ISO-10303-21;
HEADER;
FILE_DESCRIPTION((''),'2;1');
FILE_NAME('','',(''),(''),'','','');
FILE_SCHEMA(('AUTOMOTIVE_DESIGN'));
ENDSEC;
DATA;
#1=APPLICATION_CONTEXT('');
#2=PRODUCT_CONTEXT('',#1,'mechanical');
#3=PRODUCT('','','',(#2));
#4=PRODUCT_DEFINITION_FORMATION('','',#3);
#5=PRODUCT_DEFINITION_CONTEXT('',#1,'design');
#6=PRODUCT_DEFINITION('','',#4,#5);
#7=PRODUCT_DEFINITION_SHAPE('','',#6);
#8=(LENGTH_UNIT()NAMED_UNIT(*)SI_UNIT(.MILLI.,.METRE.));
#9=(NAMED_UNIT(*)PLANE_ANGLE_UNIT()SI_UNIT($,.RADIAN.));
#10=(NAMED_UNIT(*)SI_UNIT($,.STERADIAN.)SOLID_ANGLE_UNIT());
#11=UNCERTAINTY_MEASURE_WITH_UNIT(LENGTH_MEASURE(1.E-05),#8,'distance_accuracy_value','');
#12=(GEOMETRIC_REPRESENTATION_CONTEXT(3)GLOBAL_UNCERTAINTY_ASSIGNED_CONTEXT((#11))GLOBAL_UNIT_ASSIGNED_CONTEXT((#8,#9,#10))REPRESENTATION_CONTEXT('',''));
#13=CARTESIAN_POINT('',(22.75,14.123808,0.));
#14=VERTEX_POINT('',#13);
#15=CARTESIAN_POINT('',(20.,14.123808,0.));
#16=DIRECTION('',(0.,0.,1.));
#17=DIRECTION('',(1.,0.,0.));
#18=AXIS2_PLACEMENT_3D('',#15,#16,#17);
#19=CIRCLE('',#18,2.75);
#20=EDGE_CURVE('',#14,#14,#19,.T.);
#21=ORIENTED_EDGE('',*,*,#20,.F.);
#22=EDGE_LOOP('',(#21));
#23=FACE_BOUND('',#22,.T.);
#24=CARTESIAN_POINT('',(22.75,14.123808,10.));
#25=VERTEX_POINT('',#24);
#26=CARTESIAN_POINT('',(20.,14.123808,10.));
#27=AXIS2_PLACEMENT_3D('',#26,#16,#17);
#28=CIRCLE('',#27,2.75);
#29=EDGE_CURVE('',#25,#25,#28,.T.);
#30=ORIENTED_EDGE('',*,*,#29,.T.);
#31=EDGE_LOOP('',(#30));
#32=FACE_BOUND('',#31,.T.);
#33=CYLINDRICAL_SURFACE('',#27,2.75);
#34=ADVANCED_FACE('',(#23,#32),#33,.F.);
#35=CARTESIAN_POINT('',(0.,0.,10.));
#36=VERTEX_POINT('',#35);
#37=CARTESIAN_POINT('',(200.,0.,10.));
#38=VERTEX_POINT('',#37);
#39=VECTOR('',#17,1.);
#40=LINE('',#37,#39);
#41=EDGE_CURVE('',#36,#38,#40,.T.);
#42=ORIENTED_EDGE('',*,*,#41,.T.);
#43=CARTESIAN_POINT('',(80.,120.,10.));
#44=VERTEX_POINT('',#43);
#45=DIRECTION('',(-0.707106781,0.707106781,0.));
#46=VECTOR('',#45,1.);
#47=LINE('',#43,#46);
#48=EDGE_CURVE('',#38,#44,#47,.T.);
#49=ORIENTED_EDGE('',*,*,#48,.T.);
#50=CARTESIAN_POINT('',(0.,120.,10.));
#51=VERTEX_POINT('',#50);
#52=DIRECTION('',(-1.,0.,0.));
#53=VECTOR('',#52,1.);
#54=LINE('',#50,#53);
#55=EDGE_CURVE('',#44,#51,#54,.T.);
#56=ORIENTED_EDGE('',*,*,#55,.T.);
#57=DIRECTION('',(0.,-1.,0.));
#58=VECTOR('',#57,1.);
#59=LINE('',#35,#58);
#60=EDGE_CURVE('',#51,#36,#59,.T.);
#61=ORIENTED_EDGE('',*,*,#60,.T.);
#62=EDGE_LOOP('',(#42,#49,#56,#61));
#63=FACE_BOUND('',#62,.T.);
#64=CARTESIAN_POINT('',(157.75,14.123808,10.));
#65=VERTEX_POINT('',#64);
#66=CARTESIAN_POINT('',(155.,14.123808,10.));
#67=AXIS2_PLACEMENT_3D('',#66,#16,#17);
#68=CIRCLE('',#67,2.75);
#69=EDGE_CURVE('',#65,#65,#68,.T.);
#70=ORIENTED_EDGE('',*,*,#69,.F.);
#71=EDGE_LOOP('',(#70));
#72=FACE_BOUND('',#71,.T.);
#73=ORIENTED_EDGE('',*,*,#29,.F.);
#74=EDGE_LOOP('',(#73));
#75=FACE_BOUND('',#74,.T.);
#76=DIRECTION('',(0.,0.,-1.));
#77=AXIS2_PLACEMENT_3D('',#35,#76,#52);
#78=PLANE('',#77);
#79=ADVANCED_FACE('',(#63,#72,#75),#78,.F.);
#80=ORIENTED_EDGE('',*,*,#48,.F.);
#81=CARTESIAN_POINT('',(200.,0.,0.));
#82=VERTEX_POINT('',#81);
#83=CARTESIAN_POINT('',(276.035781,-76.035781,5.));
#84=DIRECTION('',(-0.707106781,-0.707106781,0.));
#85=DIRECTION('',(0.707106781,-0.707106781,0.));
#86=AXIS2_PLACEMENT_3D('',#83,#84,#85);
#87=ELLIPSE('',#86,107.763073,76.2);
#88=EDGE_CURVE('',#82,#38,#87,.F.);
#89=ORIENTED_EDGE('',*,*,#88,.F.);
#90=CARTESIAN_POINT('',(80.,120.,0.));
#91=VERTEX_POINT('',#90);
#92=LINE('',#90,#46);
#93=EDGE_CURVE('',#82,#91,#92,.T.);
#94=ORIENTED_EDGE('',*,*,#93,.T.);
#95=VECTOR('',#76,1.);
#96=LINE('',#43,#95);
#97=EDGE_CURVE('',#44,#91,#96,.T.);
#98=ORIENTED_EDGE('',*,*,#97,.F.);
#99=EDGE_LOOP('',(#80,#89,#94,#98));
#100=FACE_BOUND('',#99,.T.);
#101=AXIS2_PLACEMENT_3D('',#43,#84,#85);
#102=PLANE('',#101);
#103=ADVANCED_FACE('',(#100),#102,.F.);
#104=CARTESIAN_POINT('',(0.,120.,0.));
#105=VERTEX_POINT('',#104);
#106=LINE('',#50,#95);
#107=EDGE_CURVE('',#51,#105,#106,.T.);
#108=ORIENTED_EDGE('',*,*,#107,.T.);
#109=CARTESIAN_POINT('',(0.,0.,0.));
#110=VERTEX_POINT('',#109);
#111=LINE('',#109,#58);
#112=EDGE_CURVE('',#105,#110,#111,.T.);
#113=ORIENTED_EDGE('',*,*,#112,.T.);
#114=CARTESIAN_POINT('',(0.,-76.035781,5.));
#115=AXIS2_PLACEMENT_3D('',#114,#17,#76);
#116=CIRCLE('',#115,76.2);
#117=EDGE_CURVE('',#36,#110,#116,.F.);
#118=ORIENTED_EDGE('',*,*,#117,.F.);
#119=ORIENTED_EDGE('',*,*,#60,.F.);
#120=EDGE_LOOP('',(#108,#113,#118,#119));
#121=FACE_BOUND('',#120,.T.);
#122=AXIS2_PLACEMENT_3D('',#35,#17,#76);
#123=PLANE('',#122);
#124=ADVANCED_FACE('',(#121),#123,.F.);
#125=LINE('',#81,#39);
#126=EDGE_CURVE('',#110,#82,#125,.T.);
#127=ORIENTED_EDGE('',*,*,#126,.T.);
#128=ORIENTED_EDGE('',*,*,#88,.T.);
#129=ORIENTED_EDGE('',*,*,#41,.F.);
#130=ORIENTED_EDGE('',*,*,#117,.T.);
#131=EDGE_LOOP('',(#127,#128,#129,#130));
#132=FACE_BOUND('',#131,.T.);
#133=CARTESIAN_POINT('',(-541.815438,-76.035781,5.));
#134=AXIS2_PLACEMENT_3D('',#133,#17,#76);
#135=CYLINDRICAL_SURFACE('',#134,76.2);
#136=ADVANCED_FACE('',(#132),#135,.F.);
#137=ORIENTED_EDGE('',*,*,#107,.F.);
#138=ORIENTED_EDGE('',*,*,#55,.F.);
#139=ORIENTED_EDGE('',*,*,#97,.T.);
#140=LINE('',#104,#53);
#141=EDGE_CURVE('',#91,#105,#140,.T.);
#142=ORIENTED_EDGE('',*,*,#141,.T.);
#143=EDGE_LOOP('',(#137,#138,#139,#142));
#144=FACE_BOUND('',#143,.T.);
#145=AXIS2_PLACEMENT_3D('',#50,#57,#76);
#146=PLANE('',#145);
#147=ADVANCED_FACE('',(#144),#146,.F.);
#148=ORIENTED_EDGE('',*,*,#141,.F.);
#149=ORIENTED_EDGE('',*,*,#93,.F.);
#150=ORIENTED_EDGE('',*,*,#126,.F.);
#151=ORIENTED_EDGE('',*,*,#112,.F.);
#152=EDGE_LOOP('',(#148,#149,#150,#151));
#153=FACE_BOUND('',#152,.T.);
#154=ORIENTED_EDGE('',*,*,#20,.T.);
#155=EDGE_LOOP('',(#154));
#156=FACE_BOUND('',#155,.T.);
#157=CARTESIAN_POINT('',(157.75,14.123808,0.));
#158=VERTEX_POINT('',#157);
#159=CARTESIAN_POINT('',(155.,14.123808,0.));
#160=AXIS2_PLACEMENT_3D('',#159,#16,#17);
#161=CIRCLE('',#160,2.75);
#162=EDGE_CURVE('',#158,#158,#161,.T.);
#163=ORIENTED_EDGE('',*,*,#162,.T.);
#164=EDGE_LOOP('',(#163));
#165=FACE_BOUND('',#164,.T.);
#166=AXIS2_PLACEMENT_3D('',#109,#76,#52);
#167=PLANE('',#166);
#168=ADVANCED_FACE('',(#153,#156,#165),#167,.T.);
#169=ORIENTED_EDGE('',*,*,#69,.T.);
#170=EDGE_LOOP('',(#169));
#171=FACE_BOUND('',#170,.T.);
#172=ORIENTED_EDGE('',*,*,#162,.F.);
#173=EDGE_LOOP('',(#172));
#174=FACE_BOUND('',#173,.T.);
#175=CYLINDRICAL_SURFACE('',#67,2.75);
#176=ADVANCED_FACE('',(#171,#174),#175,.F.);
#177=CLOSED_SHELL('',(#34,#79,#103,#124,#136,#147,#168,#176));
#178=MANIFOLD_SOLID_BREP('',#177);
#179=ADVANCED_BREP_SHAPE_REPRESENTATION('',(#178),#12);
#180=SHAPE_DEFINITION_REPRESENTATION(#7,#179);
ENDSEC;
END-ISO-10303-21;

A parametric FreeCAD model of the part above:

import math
import FreeCAD as App
import Part
import Sketcher


def add_polygon(sketch, points):
    """Adds a closed chain of lines whose ends are joined by coincident constraints."""
    first, n = sketch.GeometryCount, len(points)
    for a, b in zip(points, points[1:] + points[:1]):
        sketch.addGeometry(Part.LineSegment(App.Vector(*a, 0), App.Vector(*b, 0)), False)
    for i in range(n):
        sketch.addConstraint(Sketcher.Constraint("Coincident", first + i, 2, first + (i + 1) % n, 1))

doc = App.newDocument("Part")
body = doc.addObject("PartDesign::Body", "Body")

# Sketch on XY plane
sketch1 = body.newObject("Sketcher::SketchObject", "Sketch")
sketch1.AttachmentSupport = (doc.getObject("XY_Plane"), [""])
sketch1.MapMode = "FlatFace"
add_polygon(sketch1, [(0, 120), (0, 0), (200, 0), (80, 120)])  # lines 0-3
sketch1.addConstraint([
    Sketcher.Constraint("Vertical", 0),
    Sketcher.Constraint("Horizontal", 1),
    Sketcher.Constraint("Horizontal", 3),
    Sketcher.Constraint("Coincident", 0, 2, -1, 1),
    Sketcher.Constraint("DistanceX", 1, 1, 1, 2, 200.0),
    Sketcher.Constraint("DistanceX", 3, 2, 3, 1, 80.0),
    Sketcher.Constraint("DistanceY", 0, 2, 0, 1, 120.0),
])
pad1 = body.newObject("PartDesign::Pad", "Pad")
pad1.Profile = sketch1
pad1.Length = 10

# Sketch on YZ plane
sketch2 = body.newObject("Sketcher::SketchObject", "Sketch001")
sketch2.AttachmentSupport = (doc.getObject("YZ_Plane"), [""])
sketch2.MapMode = "FlatFace"
sketch2.addGeometry([
    Part.LineSegment(App.Vector(-16, 260, 0), App.Vector(0, 10, 0)),  # 0
    Part.ArcOfCircle(Part.Circle(App.Vector(-76, 5, 0), App.Vector(0, 0, 1), 76), math.radians(-3.76), math.radians(3.76)),  # 1
    Part.LineSegment(App.Vector(0, 0, 0), App.Vector(-16, -250, 0)),  # 2
    Part.LineSegment(App.Vector(-16, -250, 0), App.Vector(-518, -250, 0)),  # 3
    Part.LineSegment(App.Vector(-518, -250, 0), App.Vector(-518, 260, 0)),  # 4
    Part.LineSegment(App.Vector(-518, 260, 0), App.Vector(-16, 260, 0)),  # 5
], False)
sketch2.addConstraint([
    Sketcher.Constraint("Tangent", 0, 2, 1, 2),
    Sketcher.Constraint("Tangent", 1, 1, 2, 1),
    Sketcher.Constraint("Coincident", 2, 2, 3, 1),
    Sketcher.Constraint("Coincident", 3, 2, 4, 1),
    Sketcher.Constraint("Coincident", 4, 2, 5, 1),
    Sketcher.Constraint("Coincident", 5, 2, 0, 1),
    Sketcher.Constraint("Horizontal", 3),
    Sketcher.Constraint("Vertical", 4),
    Sketcher.Constraint("Horizontal", 5),
    Sketcher.Constraint("Coincident", 1, 1, -1, 1),
    Sketcher.Constraint("PointOnObject", 0, 2, -2),
    Sketcher.Constraint("Vertical", 2, 2, 5, 2),
    Sketcher.Constraint("Radius", 1, 76.2),
    Sketcher.Constraint("DistanceY", -1, 1, 1, 3, 5.0),
    Sketcher.Constraint("Distance", 0, 250.831892),
    Sketcher.Constraint("DistanceX", 3, 2, 3, 1, 501.663783),
])
pocket1 = body.newObject("PartDesign::Pocket", "Pocket")
pocket1.Profile = sketch2
pocket1.Type = "ThroughAll"
pocket1.Midplane = True

# Sketch on XY plane
sketch3 = body.newObject("Sketcher::SketchObject", "Sketch002")
sketch3.AttachmentSupport = (doc.getObject("XY_Plane"), [""])
sketch3.MapMode = "FlatFace"
sketch3.AttachmentOffset = App.Placement(App.Vector(0, 0, 10), App.Rotation())
sketch3.addGeometry([
    Part.Circle(App.Vector(155, 14.1, 0), App.Vector(0, 0, 1), 2.8),
    Part.Circle(App.Vector(20, 14.1, 0), App.Vector(0, 0, 1), 2.8),
], False)
sketch3.addConstraint([
    Sketcher.Constraint("Equal", 0, 1),
    Sketcher.Constraint("Horizontal", 0, 3, 1, 3),
    Sketcher.Constraint("Diameter", 0, 5.5),
    Sketcher.Constraint("DistanceX", -1, 1, 0, 3, 155.0),
    Sketcher.Constraint("DistanceX", -1, 1, 1, 3, 20.0),
    Sketcher.Constraint("DistanceY", -1, 1, 0, 3, 14.123808),
])
doc.recompute()
hole = body.newObject("PartDesign::Hole", "Hole")
hole.Profile = sketch3
hole.ThreadType = "None"
hole.Diameter = 5.5
hole.DepthType = "ThroughAll"

doc.recompute()
